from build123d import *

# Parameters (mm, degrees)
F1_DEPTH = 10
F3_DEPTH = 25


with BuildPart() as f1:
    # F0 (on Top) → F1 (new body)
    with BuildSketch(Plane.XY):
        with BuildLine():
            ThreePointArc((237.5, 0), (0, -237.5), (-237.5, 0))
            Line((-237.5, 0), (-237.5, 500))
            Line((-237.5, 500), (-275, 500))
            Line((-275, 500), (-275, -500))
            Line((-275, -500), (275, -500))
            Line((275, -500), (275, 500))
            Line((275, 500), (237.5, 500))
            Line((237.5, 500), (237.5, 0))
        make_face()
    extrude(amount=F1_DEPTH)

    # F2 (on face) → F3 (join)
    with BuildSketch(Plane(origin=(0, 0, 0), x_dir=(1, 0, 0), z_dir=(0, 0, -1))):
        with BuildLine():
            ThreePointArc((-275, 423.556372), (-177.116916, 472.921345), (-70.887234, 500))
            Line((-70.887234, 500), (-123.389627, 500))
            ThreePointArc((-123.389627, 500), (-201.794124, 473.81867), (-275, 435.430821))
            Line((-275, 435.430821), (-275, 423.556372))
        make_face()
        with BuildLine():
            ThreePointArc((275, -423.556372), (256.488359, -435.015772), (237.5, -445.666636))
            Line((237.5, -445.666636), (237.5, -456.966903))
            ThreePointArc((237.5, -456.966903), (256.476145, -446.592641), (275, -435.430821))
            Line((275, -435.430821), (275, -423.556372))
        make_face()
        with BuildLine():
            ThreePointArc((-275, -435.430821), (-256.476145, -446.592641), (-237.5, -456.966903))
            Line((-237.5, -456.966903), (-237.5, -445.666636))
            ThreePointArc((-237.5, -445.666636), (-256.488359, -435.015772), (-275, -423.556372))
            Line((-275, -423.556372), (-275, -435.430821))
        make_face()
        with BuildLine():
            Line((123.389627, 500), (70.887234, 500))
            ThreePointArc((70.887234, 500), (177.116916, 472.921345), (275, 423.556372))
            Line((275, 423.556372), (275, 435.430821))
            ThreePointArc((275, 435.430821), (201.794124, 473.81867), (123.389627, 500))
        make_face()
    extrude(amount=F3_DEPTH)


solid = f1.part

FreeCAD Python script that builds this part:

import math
import FreeCAD as App
import Part
import Sketcher
from FreeCAD import Vector

doc = App.newDocument("Part")
body = doc.addObject("PartDesign::Body", "Body")

# Sketch on XY plane
sketch1 = body.newObject("Sketcher::SketchObject", "Sketch")
sketch1.AttachmentSupport = (doc.getObject("XY_Plane"), [""])
sketch1.MapMode = "FlatFace"
sketch1.addGeometry(Part.ArcOfCircle(Part.Circle(Vector(0, 0, 0), Vector(0, 0, 1), 237.5), math.radians(180), math.radians(360)), False)
sketch1.addGeometry(Part.LineSegment(Vector(-237.5, 0, 0), Vector(-237.5, 500, 0)), False)
sketch1.addGeometry(Part.LineSegment(Vector(-237.5, 500, 0), Vector(-275, 500, 0)), False)
sketch1.addGeometry(Part.LineSegment(Vector(-275, 500, 0), Vector(-275, -500, 0)), False)
sketch1.addGeometry(Part.LineSegment(Vector(-275, -500, 0), Vector(275, -500, 0)), False)
sketch1.addGeometry(Part.LineSegment(Vector(275, -500, 0), Vector(275, 500, 0)), False)
sketch1.addGeometry(Part.LineSegment(Vector(275, 500, 0), Vector(237.5, 500, 0)), False)
sketch1.addGeometry(Part.LineSegment(Vector(237.5, 500, 0), Vector(237.5, 0, 0)), False)
sketch1.addConstraint(Sketcher.Constraint("Tangent", 0, 1, 1, 1))
sketch1.addConstraint(Sketcher.Constraint("Coincident", 1, 2, 2, 1))
sketch1.addConstraint(Sketcher.Constraint("Coincident", 2, 2, 3, 1))
sketch1.addConstraint(Sketcher.Constraint("Coincident", 3, 2, 4, 1))
sketch1.addConstraint(Sketcher.Constraint("Coincident", 4, 2, 5, 1))
sketch1.addConstraint(Sketcher.Constraint("Coincident", 5, 2, 6, 1))
sketch1.addConstraint(Sketcher.Constraint("Coincident", 6, 2, 7, 1))
sketch1.addConstraint(Sketcher.Constraint("Tangent", 7, 2, 0, 2))
sketch1.addConstraint(Sketcher.Constraint("Vertical", 1))
sketch1.addConstraint(Sketcher.Constraint("Horizontal", 2))
sketch1.addConstraint(Sketcher.Constraint("Vertical", 3))
sketch1.addConstraint(Sketcher.Constraint("Horizontal", 4))
sketch1.addConstraint(Sketcher.Constraint("Vertical", 5))
sketch1.addConstraint(Sketcher.Constraint("Horizontal", 6))
sketch1.addConstraint(Sketcher.Constraint("Vertical", 7))
sketch1.addConstraint(Sketcher.Constraint("Coincident", 0, 3, -1, 1))
sketch1.addConstraint(Sketcher.Constraint("Symmetric", 2, 2, 4, 2, -1, 1))
sketch1.addConstraint(Sketcher.Constraint("Horizontal", 2, 2, 5, 2))
sketch1.addConstraint(Sketcher.Constraint("Radius", 0, 237.5))
sketch1.addConstraint(Sketcher.Constraint("DistanceX", 4, 1, 4, 2, 550.0))
sketch1.addConstraint(Sketcher.Constraint("DistanceY", 1, 1, 1, 2, 500.0))
pad1 = body.newObject("PartDesign::Pad", "Pad")
pad1.Profile = sketch1
pad1.Length = 10

# Sketch on XY plane
sketch2 = body.newObject("Sketcher::SketchObject", "Sketch001")
sketch2.AttachmentSupport = (doc.getObject("XY_Plane"), [""])
sketch2.MapMode = "FlatFace"
sketch2.addGeometry(Part.ArcOfCircle(Part.Circle(Vector(-0.000006, -0.000015, 0), Vector(0, 0, 1), 504.999984), math.radians(-122.994222), math.radians(-98.069301)), False)
sketch2.addGeometry(Part.LineSegment(Vector(-70.887234, -500, 0), Vector(-123.389627, -500, 0)), False)
sketch2.addGeometry(Part.ArcOfCircle(Part.Circle(Vector(-0.000016, -0.000039, 0), Vector(0, 0, 1), 514.999958), math.radians(-122.274804), math.radians(-103.862431)), False)
sketch2.addGeometry(Part.LineSegment(Vector(-275, -435.430821, 0), Vector(-275, -423.556372, 0)), False)
sketch2.addGeometry(Part.ArcOfCircle(Part.Circle(Vector(-0.000089, -0.000147, 0), Vector(0, 0, 1), 505.000172), math.radians(57.005779), math.radians(61.94642)), False)
sketch2.addGeometry(Part.LineSegment(Vector(237.5, 445.666636, 0), Vector(237.5, 456.966903, 0)), False)
sketch2.addGeometry(Part.ArcOfCircle(Part.Circle(Vector(-0.000119, -0.000195, 0), Vector(0, 0, 1), 515.000229), math.radians(57.725197), math.radians(62.537687)), False)
sketch2.addGeometry(Part.LineSegment(Vector(275, 435.430821, 0), Vector(275, 423.556372, 0)), False)
sketch2.addGeometry(Part.ArcOfCircle(Part.Circle(Vector(0.000119, -0.000195, 0), Vector(0, 0, 1), 515.000229), math.radians(117.462313), math.radians(122.274803)), False)
sketch2.addGeometry(Part.LineSegment(Vector(-237.5, 456.966903, 0), Vector(-237.5, 445.666636, 0)), False)
sketch2.addGeometry(Part.ArcOfCircle(Part.Circle(Vector(0.000089, -0.000147, 0), Vector(0, 0, 1), 505.000172), math.radians(118.05358), math.radians(122.994221)), False)
sketch2.addGeometry(Part.LineSegment(Vector(-275, 423.556372, 0), Vector(-275, 435.430821, 0)), False)
sketch2.addGeometry(Part.LineSegment(Vector(123.389627, -500, 0), Vector(70.887234, -500, 0)), False)
sketch2.addGeometry(Part.ArcOfCircle(Part.Circle(Vector(0.000006, -0.000015, 0), Vector(0, 0, 1), 504.999984), math.radians(-81.930699), math.radians(-57.005778)), False)
sketch2.addGeometry(Part.LineSegment(Vector(275, -423.556372, 0), Vector(275, -435.430821, 0)), False)
sketch2.addGeometry(Part.ArcOfCircle(Part.Circle(Vector(0.000016, -0.000039, 0), Vector(0, 0, 1), 514.999958), math.radians(-76.137569), math.radians(-57.725196)), False)
sketch2.addConstraint(Sketcher.Constraint("Coincident", 0, 2, 1, 1))
sketch2.addConstraint(Sketcher.Constraint("Coincident", 1, 2, 2, 2))
sketch2.addConstraint(Sketcher.Constraint("Coincident", 2, 1, 3, 1))
sketch2.addConstraint(Sketcher.Constraint("Coincident", 3, 2, 0, 1))
sketch2.addConstraint(Sketcher.Constraint("Coincident", 4, 2, 5, 1))
sketch2.addConstraint(Sketcher.Constraint("Coincident", 5, 2, 6, 2))
sketch2.addConstraint(Sketcher.Constraint("Coincident", 6, 1, 7, 1))
sketch2.addConstraint(Sketcher.Constraint("Coincident", 7, 2, 4, 1))
sketch2.addConstraint(Sketcher.Constraint("Coincident", 8, 1, 9, 1))
sketch2.addConstraint(Sketcher.Constraint("Coincident", 9, 2, 10, 1))
sketch2.addConstraint(Sketcher.Constraint("Coincident", 10, 2, 11, 1))
sketch2.addConstraint(Sketcher.Constraint("Coincident", 11, 2, 8, 2))
sketch2.addConstraint(Sketcher.Constraint("Coincident", 12, 2, 13, 1))
sketch2.addConstraint(Sketcher.Constraint("Coincident", 13, 2, 14, 1))
sketch2.addConstraint(Sketcher.Constraint("Coincident", 14, 2, 15, 2))
sketch2.addConstraint(Sketcher.Constraint("Coincident", 15, 1, 12, 1))
sketch2.addConstraint(Sketcher.Constraint("Horizontal", 1))
sketch2.addConstraint(Sketcher.Constraint("Vertical", 3))
sketch2.addConstraint(Sketcher.Constraint("Vertical", 5))
sketch2.addConstraint(Sketcher.Constraint("Vertical", 7))
sketch2.addConstraint(Sketcher.Constraint("Vertical", 9))
sketch2.addConstraint(Sketcher.Constraint("Vertical", 11))
sketch2.addConstraint(Sketcher.Constraint("Horizontal", 12))
sketch2.addConstraint(Sketcher.Constraint("Vertical", 14))
sketch2.addConstraint(Sketcher.Constraint("Equal", 6, 8))
sketch2.addConstraint(Sketcher.Constraint("Equal", 4, 10))
sketch2.addConstraint(Sketcher.Constraint("Equal", 0, 13))
sketch2.addConstraint(Sketcher.Constraint("Equal", 2, 15))
sketch2.addConstraint(Sketcher.Constraint("Symmetric", 3, 2, 7, 2, -1, 1))
sketch2.addConstraint(Sketcher.Constraint("Symmetric", 11, 2, 14, 2, -1, 1))
sketch2.addConstraint(Sketcher.Constraint("Symmetric", 6, 3, 8, 3, -2))
sketch2.addConstraint(Sketcher.Constraint("Symmetric", 4, 3, 10, 3, -2))
sketch2.addConstraint(Sketcher.Constraint("Symmetric", 0, 3, 13, 3, -2))
sketch2.addConstraint(Sketcher.Constraint("Symmetric", 2, 3, 15, 3, -2))
sketch2.addConstraint(Sketcher.Constraint("Horizontal", 1, 2, 12, 2))
sketch2.addConstraint(Sketcher.Constraint("Equal", 5, 9))
sketch2.addConstraint(Sketcher.Constraint("Equal", 7, 11))
sketch2.addConstraint(Sketcher.Constraint("DistanceY", 0, 2, -1, 1, 500.0))
sketch2.addConstraint(Sketcher.Constraint("DistanceX", 3, 2, -1, 1, 275.0))
sketch2.addConstraint(Sketcher.Constraint("DistanceX", 9, 2, 4, 2, 475.0))
sketch2.addConstraint(Sketcher.Constraint("Radius", 2, 514.999958))
sketch2.addConstraint(Sketcher.Constraint("Radius", 6, 515.000229))
sketch2.addConstraint(Sketcher.Constraint("Radius", 0, 504.999984))
sketch2.addConstraint(Sketcher.Constraint("Radius", 4, 505.000172))
sketch2.addConstraint(Sketcher.Constraint("DistanceY", 3, 1, 3, 2, 11.874449))
sketch2.addConstraint(Sketcher.Constraint("DistanceX", 1, 2, 1, 1, 52.502393))
sketch2.addConstraint(Sketcher.Constraint("DistanceY", 5, 1, 5, 2, 11.300267))
sketch2.addConstraint(Sketcher.Constraint("DistanceX", 6, 3, -1, 1, 0.000119))
sketch2.addConstraint(Sketcher.Constraint("DistanceY", 3, 2, -1, 1, 423.556372))
sketch2.addConstraint(Sketcher.Constraint("DistanceY", 4, 3, 2, 3, 0.000108))
pad2 = body.newObject("PartDesign::Pad", "Pad001")
pad2.Profile = sketch2
pad2.Length = 25
pad2.Reversed = True

doc.recompute()
